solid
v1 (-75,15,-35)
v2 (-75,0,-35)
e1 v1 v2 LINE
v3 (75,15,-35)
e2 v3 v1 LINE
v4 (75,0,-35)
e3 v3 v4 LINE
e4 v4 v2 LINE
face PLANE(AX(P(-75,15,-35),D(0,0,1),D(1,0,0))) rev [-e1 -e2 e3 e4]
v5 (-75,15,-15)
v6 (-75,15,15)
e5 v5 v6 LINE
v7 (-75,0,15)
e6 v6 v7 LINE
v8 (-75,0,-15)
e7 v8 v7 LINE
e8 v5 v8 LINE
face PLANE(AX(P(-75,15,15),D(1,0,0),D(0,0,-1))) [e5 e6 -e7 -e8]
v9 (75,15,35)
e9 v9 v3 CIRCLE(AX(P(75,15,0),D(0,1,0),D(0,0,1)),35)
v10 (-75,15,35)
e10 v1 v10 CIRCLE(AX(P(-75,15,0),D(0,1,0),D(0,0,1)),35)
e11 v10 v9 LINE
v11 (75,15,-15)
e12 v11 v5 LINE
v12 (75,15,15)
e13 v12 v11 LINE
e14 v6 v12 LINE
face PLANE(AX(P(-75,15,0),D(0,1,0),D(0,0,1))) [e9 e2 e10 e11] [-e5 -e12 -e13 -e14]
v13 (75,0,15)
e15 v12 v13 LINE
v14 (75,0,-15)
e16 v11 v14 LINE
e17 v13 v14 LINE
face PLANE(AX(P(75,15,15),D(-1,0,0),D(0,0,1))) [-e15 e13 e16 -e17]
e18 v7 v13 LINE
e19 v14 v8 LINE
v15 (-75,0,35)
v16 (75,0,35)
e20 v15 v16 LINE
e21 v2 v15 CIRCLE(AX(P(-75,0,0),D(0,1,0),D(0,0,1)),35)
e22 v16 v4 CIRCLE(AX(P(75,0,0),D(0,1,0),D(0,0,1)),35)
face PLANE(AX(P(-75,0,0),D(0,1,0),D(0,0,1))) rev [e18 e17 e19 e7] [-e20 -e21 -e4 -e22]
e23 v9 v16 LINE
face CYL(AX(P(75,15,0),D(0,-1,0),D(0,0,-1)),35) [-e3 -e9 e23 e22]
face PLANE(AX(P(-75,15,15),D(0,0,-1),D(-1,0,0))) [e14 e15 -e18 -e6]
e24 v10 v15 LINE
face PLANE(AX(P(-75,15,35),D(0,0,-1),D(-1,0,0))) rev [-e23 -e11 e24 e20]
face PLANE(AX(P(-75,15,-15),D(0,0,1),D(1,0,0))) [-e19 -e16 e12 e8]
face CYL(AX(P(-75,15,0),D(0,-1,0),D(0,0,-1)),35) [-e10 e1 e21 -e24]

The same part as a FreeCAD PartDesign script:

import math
import FreeCAD as App
import Part
import Sketcher
from FreeCAD import Vector
Q = App.Units.Quantity


def add_polygon(sketch, points):
    """Adds a closed chain of lines whose ends are joined by coincident constraints."""
    first, n = sketch.GeometryCount, len(points)
    for a, b in zip(points, points[1:] + points[:1]):
        sketch.addGeometry(Part.LineSegment(App.Vector(*a, 0), App.Vector(*b, 0)), False)
    for i in range(n):
        sketch.addConstraint(Sketcher.Constraint("Coincident", first + i, 2, first + (i + 1) % n, 1))

doc = App.newDocument("Part")
body = doc.addObject("PartDesign::Body", "Body")

sketch1 = body.newObject("Sketcher::SketchObject", "Sketch")
sketch1.AttachmentSupport = (doc.getObject("XZ_Plane"), [""])
sketch1.MapMode = "FlatFace"
sketch1.addGeometry(Part.LineSegment(Vector(75, -35, 0), Vector(-75, -35, 0)), False)
sketch1.addGeometry(Part.ArcOfCircle(Part.Circle(Vector(-75, 0, 0), Vector(0, 0, 1), 35), math.radians(90), math.radians(270)), False)
sketch1.addGeometry(Part.LineSegment(Vector(-75, 35, 0), Vector(75, 35, 0)), False)
sketch1.addGeometry(Part.ArcOfCircle(Part.Circle(Vector(75, 0, 0), Vector(0, 0, 1), 35), math.radians(-90), math.radians(90)), False)
add_polygon(sketch1, [(-75, 15), (-75, -15), (75, -15), (75, 15)])
sketch1.addConstraint([
    Sketcher.Constraint("Tangent", 0, 2, 1, 2),
    Sketcher.Constraint("Tangent", 1, 1, 2, 1),
    Sketcher.Constraint("Tangent", 2, 2, 3, 2),
    Sketcher.Constraint("Tangent", 3, 1, 0, 1),
    Sketcher.Constraint("Horizontal", 0),
    Sketcher.Constraint("Horizontal", 2),
    Sketcher.Constraint("Vertical", 4),
    Sketcher.Constraint("Horizontal", 5),
    Sketcher.Constraint("Vertical", 6),
    Sketcher.Constraint("Horizontal", 7),
    Sketcher.Constraint("Symmetric", 1, 3, 3, 3, -1, 1),
    Sketcher.Constraint("Symmetric", 4, 2, 6, 2, -1, 1),
    Sketcher.Constraint("Vertical", 1, 1, 4, 2),
    Sketcher.Constraint("Radius", 1, Q("35 mm")),
    Sketcher.Constraint("DistanceX", 0, 2, 0, 1, Q("150 mm")),
    Sketcher.Constraint("DistanceY", 4, 2, 4, 1, Q("30 mm")),
])
pad1 = body.newObject("PartDesign::Pad", "Pad")
pad1.Profile = sketch1
pad1.Length = 15
pad1.Reversed = True

doc.recompute()
